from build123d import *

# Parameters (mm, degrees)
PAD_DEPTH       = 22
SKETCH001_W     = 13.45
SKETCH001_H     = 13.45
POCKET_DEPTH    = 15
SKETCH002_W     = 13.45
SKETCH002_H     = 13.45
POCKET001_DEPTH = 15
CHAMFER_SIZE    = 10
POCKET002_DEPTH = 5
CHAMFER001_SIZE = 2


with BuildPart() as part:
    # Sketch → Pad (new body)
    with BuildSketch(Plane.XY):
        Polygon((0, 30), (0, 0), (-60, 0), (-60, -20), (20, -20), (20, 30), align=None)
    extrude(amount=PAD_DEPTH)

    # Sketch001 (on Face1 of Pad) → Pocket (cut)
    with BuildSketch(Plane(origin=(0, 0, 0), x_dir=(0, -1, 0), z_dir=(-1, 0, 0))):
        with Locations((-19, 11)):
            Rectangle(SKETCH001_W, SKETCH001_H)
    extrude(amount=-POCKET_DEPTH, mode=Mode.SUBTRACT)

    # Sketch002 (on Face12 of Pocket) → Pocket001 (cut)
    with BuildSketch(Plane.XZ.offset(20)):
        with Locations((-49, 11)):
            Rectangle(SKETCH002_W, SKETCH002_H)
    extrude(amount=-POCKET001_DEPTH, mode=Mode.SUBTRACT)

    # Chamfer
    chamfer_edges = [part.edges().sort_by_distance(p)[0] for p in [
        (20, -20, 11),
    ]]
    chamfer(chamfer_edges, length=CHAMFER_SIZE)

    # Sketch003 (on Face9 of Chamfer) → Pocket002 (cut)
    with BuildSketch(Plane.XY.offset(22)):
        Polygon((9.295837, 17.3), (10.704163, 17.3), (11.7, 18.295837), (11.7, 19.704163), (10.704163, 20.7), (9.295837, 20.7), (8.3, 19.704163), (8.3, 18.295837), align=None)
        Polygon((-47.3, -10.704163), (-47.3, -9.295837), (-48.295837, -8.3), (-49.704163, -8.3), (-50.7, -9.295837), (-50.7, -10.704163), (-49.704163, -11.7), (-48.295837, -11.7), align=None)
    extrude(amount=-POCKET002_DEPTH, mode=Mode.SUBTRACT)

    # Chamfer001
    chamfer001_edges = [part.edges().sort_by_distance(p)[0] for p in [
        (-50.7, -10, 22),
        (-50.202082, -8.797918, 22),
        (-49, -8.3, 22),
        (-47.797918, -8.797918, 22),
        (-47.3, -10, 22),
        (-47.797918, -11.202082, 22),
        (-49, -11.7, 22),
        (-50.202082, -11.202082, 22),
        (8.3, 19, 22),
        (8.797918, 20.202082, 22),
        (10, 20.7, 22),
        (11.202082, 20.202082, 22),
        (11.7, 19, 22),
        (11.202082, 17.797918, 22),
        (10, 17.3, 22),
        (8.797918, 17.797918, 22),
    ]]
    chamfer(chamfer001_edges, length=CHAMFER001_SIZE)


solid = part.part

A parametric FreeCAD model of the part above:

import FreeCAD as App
import Part
import Sketcher


def edges_at(feature, points):
    """Names of the edges that pass closest to the given points."""
    edges = feature.Shape.Edges
    near = lambda p: min(range(len(edges)), key=lambda i: edges[i].distToShape(Part.Vertex(*p))[0])
    return sorted({f"Edge{near(p) + 1}" for p in points})

doc = App.newDocument("Part")
params = doc.addObject("Spreadsheet::Sheet", "Params")
for row, (alias, value) in enumerate([
    ("sketch1_width", "60 mm"),
    ("sketch1_width2", "80 mm"),
    ("sketch1_height", "30 mm"),
    ("pad1_length", "22 mm"),
    ("sketch2_width", "13.45 mm"),
    ("pocket1_length", "15 mm"),
    ("sketch3_width", "13.45 mm"),
    ("pocket2_length", "15 mm"),
    ("chamfer_size", "10 mm"),
    ("pocket3_length", "5 mm"),
    ("chamfer2_size", "2 mm"),
], start=1):
    params.set(f"A{row}", alias)
    params.set(f"B{row}", "=" + value)
    params.setAlias(f"B{row}", alias)

body = doc.addObject("PartDesign::Body", "Body")

# Sketch on XY plane
sketch1 = body.newObject("Sketcher::SketchObject", "Sketch")
sketch1.AttachmentSupport = (doc.getObject("XY_Plane"), [""])
sketch1.MapMode = "FlatFace"
sketch1.addGeometry([
    Part.LineSegment(App.Vector(0, 30, 0), App.Vector(0, 0, 0)),  # 0
    Part.LineSegment(App.Vector(0, 0, 0), App.Vector(-60, 0, 0)),  # 1
    Part.LineSegment(App.Vector(-60, 0, 0), App.Vector(-60, -20, 0)),  # 2
    Part.LineSegment(App.Vector(-60, -20, 0), App.Vector(20, -20, 0)),  # 3
    Part.LineSegment(App.Vector(20, -20, 0), App.Vector(20, 30, 0)),  # 4
    Part.LineSegment(App.Vector(20, 30, 0), App.Vector(0, 30, 0)),  # 5
], False)
sketch1.addConstraint([
    Sketcher.Constraint("Coincident", 0, 2, 1, 1),
    Sketcher.Constraint("Coincident", 1, 2, 2, 1),
    Sketcher.Constraint("Coincident", 2, 2, 3, 1),
    Sketcher.Constraint("Coincident", 3, 2, 4, 1),
    Sketcher.Constraint("Coincident", 4, 2, 5, 1),
    Sketcher.Constraint("Coincident", 5, 2, 0, 1),
    Sketcher.Constraint("Vertical", 0),
    Sketcher.Constraint("Horizontal", 1),
    Sketcher.Constraint("Vertical", 2),
    Sketcher.Constraint("Horizontal", 3),
    Sketcher.Constraint("Vertical", 4),
    Sketcher.Constraint("Horizontal", 5),
    Sketcher.Constraint("Coincident", 0, 2, -1, 1),
    Sketcher.Constraint("Equal", 5, 2),
    Sketcher.Constraint("DistanceX", 1, 2, 1, 1, 60.0),
    Sketcher.Constraint("DistanceX", 3, 1, 3, 2, 80.0),
    Sketcher.Constraint("DistanceY", 0, 2, 0, 1, 30.0),
])
sketch1.setExpression("Constraints[14]", "Params.sketch1_width")
sketch1.setExpression("Constraints[15]", "Params.sketch1_width2")
sketch1.setExpression("Constraints[16]", "Params.sketch1_height")
pad1 = body.newObject("PartDesign::Pad", "Pad")
pad1.Profile = sketch1
pad1.setExpression("Length", "Params.pad1_length")

# Sketch on YZ plane
sketch2 = body.newObject("Sketcher::SketchObject", "Sketch001")
sketch2.AttachmentSupport = (doc.getObject("YZ_Plane"), [""])
sketch2.MapMode = "FlatFace"
sketch2.addGeometry([
    Part.LineSegment(App.Vector(25.725, 17.725, 0), App.Vector(25.725, 4.275, 0)),
    Part.LineSegment(App.Vector(25.725, 4.275, 0), App.Vector(12.275, 4.275, 0)),
    Part.LineSegment(App.Vector(12.275, 4.275, 0), App.Vector(12.275, 17.725, 0)),
    Part.LineSegment(App.Vector(12.275, 17.725, 0), App.Vector(25.725, 17.725, 0)),
], False)
sketch2.addConstraint([
    Sketcher.Constraint("Coincident", 0, 2, 1, 1),
    Sketcher.Constraint("Coincident", 1, 2, 2, 1),
    Sketcher.Constraint("Coincident", 2, 2, 3, 1),
    Sketcher.Constraint("Coincident", 3, 2, 0, 1),
    Sketcher.Constraint("Vertical", 0),
    Sketcher.Constraint("Horizontal", 1),
    Sketcher.Constraint("Vertical", 2),
    Sketcher.Constraint("Horizontal", 3),
    Sketcher.Constraint("Equal", 3, 0),
    Sketcher.Constraint("DistanceX", 1, 2, 1, 1, 13.45),
    Sketcher.Constraint("DistanceX", -1, 1, 0, 2, 25.725),
    Sketcher.Constraint("DistanceY", -1, 1, 0, 2, 4.275),
])
sketch2.setExpression("Constraints[9]", "Params.sketch2_width")
pocket1 = body.newObject("PartDesign::Pocket", "Pocket")
pocket1.Profile = sketch2
pocket1.setExpression("Length", "Params.pocket1_length")
pocket1.Reversed = True

# Sketch on XZ plane
sketch3 = body.newObject("Sketcher::SketchObject", "Sketch002")
sketch3.AttachmentSupport = (doc.getObject("XZ_Plane"), [""])
sketch3.MapMode = "FlatFace"
sketch3.AttachmentOffset = App.Placement(App.Vector(0, 0, 20), App.Rotation())
sketch3.addGeometry([
    Part.LineSegment(App.Vector(-55.725, 17.725, 0), App.Vector(-55.725, 4.275, 0)),
    Part.LineSegment(App.Vector(-55.725, 4.275, 0), App.Vector(-42.275, 4.275, 0)),
    Part.LineSegment(App.Vector(-42.275, 4.275, 0), App.Vector(-42.275, 17.725, 0)),
    Part.LineSegment(App.Vector(-42.275, 17.725, 0), App.Vector(-55.725, 17.725, 0)),
], False)
sketch3.addConstraint([
    Sketcher.Constraint("Coincident", 0, 2, 1, 1),
    Sketcher.Constraint("Coincident", 1, 2, 2, 1),
    Sketcher.Constraint("Coincident", 2, 2, 3, 1),
    Sketcher.Constraint("Coincident", 3, 2, 0, 1),
    Sketcher.Constraint("Vertical", 0),
    Sketcher.Constraint("Horizontal", 1),
    Sketcher.Constraint("Vertical", 2),
    Sketcher.Constraint("Horizontal", 3),
    Sketcher.Constraint("Equal", 3, 0),
    Sketcher.Constraint("DistanceX", 1, 1, 1, 2, 13.45),
    Sketcher.Constraint("DistanceX", 0, 2, -1, 1, 55.725),
    Sketcher.Constraint("DistanceY", -1, 1, 0, 2, 4.275),
])
sketch3.setExpression("Constraints[9]", "Params.sketch3_width")
pocket2 = body.newObject("PartDesign::Pocket", "Pocket001")
pocket2.Profile = sketch3
pocket2.setExpression("Length", "Params.pocket2_length")
doc.recompute()

chamfer = body.newObject("PartDesign::Chamfer", "Chamfer")
chamfer.Base = (pocket2, edges_at(pocket2, [(20, -20, 11)]))
chamfer.setExpression("Size", "Params.chamfer_size")

# Sketch on XY plane
sketch4 = body.newObject("Sketcher::SketchObject", "Sketch003")
sketch4.AttachmentSupport = (doc.getObject("XY_Plane"), [""])
sketch4.MapMode = "FlatFace"
sketch4.AttachmentOffset = App.Placement(App.Vector(0, 0, 22), App.Rotation())
sketch4.addGeometry([
    Part.LineSegment(App.Vector(9.295837, 17.3, 0), App.Vector(10.704163, 17.3, 0)),  # 0
    Part.LineSegment(App.Vector(10.704163, 17.3, 0), App.Vector(11.7, 18.295837, 0)),  # 1
    Part.LineSegment(App.Vector(11.7, 18.295837, 0), App.Vector(11.7, 19.704163, 0)),  # 2
    Part.LineSegment(App.Vector(11.7, 19.704163, 0), App.Vector(10.704163, 20.7, 0)),  # 3
    Part.LineSegment(App.Vector(10.704163, 20.7, 0), App.Vector(9.295837, 20.7, 0)),  # 4
    Part.LineSegment(App.Vector(9.295837, 20.7, 0), App.Vector(8.3, 19.704163, 0)),  # 5
    Part.LineSegment(App.Vector(8.3, 19.704163, 0), App.Vector(8.3, 18.295837, 0)),  # 6
    Part.LineSegment(App.Vector(8.3, 18.295837, 0), App.Vector(9.295837, 17.3, 0)),  # 7
    Part.LineSegment(App.Vector(-47.3, -10.704163, 0), App.Vector(-47.3, -9.295837, 0)),  # 8
    Part.LineSegment(App.Vector(-47.3, -9.295837, 0), App.Vector(-48.295837, -8.3, 0)),  # 9
    Part.LineSegment(App.Vector(-48.295837, -8.3, 0), App.Vector(-49.704163, -8.3, 0)),  # 10
    Part.LineSegment(App.Vector(-49.704163, -8.3, 0), App.Vector(-50.7, -9.295837, 0)),  # 11
    Part.LineSegment(App.Vector(-50.7, -9.295837, 0), App.Vector(-50.7, -10.704163, 0)),  # 12
    Part.LineSegment(App.Vector(-50.7, -10.704163, 0), App.Vector(-49.704163, -11.7, 0)),  # 13
    Part.LineSegment(App.Vector(-49.704163, -11.7, 0), App.Vector(-48.295837, -11.7, 0)),  # 14
    Part.LineSegment(App.Vector(-48.295837, -11.7, 0), App.Vector(-47.3, -10.704163, 0)),  # 15
], False)
sketch4.addConstraint([
    Sketcher.Constraint("Coincident", 0, 2, 1, 1),
    Sketcher.Constraint("Coincident", 1, 2, 2, 1),
    Sketcher.Constraint("Coincident", 2, 2, 3, 1),
    Sketcher.Constraint("Coincident", 3, 2, 4, 1),
    Sketcher.Constraint("Coincident", 4, 2, 5, 1),
    Sketcher.Constraint("Coincident", 5, 2, 6, 1),
    Sketcher.Constraint("Coincident", 6, 2, 7, 1),
    Sketcher.Constraint("Coincident", 7, 2, 0, 1),
    Sketcher.Constraint("Coincident", 8, 2, 9, 1),
    Sketcher.Constraint("Coincident", 9, 2, 10, 1),
    Sketcher.Constraint("Coincident", 10, 2, 11, 1),
    Sketcher.Constraint("Coincident", 11, 2, 12, 1),
    Sketcher.Constraint("Coincident", 12, 2, 13, 1),
    Sketcher.Constraint("Coincident", 13, 2, 14, 1),
    Sketcher.Constraint("Coincident", 14, 2, 15, 1),
    Sketcher.Constraint("Coincident", 15, 2, 8, 1),
    Sketcher.Constraint("Horizontal", 0),
    Sketcher.Constraint("Vertical", 2),
    Sketcher.Constraint("Horizontal", 4),
    Sketcher.Constraint("Vertical", 6),
    Sketcher.Constraint("Vertical", 8),
    Sketcher.Constraint("Horizontal", 10),
    Sketcher.Constraint("Vertical", 12),
    Sketcher.Constraint("Horizontal", 14),
    Sketcher.Constraint("Perpendicular", 1, 3),
    Sketcher.Constraint("Perpendicular", 3, 5),
    Sketcher.Constraint("Perpendicular", 5, 7),
    Sketcher.Constraint("Parallel", 7, 9),
    Sketcher.Constraint("Perpendicular", 9, 11),
    Sketcher.Constraint("Perpendicular", 11, 13),
    Sketcher.Constraint("Perpendicular", 13, 15),
    Sketcher.Constraint("Horizontal", 2, 2, 5, 2),
    Sketcher.Constraint("Horizontal", 1, 2, 6, 2),
    Sketcher.Constraint("Horizontal", 8, 2, 11, 2),
    Sketcher.Constraint("Horizontal", 12, 2, 15, 2),
    Sketcher.Constraint("Vertical", 0, 2, 3, 2),
    Sketcher.Constraint("Vertical", 4, 2, 7, 2),
    Sketcher.Constraint("Vertical", 10, 2, 13, 2),
    Sketcher.Constraint("Equal", 4, 10),
    Sketcher.Constraint("Equal", 14, 2),
    Sketcher.Constraint("Equal", 6, 8),
    Sketcher.Constraint("Equal", 7, 9),
    Sketcher.Constraint("DistanceY", 8, 2, 5, 2, 29.0),
    Sketcher.Constraint("DistanceX", 9, 2, 0, 2, 59.0),
    Sketcher.Constraint("DistanceY", -1, 1, 0, 2, 17.3),
    Sketcher.Constraint("DistanceX", -1, 1, 1, 2, 11.7),
    Sketcher.Constraint("DistanceY", -1, 1, 3, 2, 20.7),
    Sketcher.Constraint("DistanceX", 0, 1, 0, 2, 1.408326),
])
pocket3 = body.newObject("PartDesign::Pocket", "Pocket002")
pocket3.Profile = sketch4
pocket3.setExpression("Length", "Params.pocket3_length")
doc.recompute()

chamfer2 = body.newObject("PartDesign::Chamfer", "Chamfer001")
chamfer2.Base = (pocket3, edges_at(pocket3, [
    (-50.7, -10, 22),
    (-50.202, -8.798, 22),
    (-49, -8.3, 22),
    (-47.798, -8.798, 22),
    (-47.3, -10, 22),
    (-47.798, -11.202, 22),
    (-49, -11.7, 22),
    (-50.202, -11.202, 22),
    (8.3, 19, 22),
    (8.798, 20.202, 22),
    (10, 20.7, 22),
    (11.202, 20.202, 22),
    (11.7, 19, 22),
    (11.202, 17.798, 22),
    (10, 17.3, 22),
    (8.798, 17.798, 22),
]))
chamfer2.setExpression("Size", "Params.chamfer2_size")

doc.recompute()
